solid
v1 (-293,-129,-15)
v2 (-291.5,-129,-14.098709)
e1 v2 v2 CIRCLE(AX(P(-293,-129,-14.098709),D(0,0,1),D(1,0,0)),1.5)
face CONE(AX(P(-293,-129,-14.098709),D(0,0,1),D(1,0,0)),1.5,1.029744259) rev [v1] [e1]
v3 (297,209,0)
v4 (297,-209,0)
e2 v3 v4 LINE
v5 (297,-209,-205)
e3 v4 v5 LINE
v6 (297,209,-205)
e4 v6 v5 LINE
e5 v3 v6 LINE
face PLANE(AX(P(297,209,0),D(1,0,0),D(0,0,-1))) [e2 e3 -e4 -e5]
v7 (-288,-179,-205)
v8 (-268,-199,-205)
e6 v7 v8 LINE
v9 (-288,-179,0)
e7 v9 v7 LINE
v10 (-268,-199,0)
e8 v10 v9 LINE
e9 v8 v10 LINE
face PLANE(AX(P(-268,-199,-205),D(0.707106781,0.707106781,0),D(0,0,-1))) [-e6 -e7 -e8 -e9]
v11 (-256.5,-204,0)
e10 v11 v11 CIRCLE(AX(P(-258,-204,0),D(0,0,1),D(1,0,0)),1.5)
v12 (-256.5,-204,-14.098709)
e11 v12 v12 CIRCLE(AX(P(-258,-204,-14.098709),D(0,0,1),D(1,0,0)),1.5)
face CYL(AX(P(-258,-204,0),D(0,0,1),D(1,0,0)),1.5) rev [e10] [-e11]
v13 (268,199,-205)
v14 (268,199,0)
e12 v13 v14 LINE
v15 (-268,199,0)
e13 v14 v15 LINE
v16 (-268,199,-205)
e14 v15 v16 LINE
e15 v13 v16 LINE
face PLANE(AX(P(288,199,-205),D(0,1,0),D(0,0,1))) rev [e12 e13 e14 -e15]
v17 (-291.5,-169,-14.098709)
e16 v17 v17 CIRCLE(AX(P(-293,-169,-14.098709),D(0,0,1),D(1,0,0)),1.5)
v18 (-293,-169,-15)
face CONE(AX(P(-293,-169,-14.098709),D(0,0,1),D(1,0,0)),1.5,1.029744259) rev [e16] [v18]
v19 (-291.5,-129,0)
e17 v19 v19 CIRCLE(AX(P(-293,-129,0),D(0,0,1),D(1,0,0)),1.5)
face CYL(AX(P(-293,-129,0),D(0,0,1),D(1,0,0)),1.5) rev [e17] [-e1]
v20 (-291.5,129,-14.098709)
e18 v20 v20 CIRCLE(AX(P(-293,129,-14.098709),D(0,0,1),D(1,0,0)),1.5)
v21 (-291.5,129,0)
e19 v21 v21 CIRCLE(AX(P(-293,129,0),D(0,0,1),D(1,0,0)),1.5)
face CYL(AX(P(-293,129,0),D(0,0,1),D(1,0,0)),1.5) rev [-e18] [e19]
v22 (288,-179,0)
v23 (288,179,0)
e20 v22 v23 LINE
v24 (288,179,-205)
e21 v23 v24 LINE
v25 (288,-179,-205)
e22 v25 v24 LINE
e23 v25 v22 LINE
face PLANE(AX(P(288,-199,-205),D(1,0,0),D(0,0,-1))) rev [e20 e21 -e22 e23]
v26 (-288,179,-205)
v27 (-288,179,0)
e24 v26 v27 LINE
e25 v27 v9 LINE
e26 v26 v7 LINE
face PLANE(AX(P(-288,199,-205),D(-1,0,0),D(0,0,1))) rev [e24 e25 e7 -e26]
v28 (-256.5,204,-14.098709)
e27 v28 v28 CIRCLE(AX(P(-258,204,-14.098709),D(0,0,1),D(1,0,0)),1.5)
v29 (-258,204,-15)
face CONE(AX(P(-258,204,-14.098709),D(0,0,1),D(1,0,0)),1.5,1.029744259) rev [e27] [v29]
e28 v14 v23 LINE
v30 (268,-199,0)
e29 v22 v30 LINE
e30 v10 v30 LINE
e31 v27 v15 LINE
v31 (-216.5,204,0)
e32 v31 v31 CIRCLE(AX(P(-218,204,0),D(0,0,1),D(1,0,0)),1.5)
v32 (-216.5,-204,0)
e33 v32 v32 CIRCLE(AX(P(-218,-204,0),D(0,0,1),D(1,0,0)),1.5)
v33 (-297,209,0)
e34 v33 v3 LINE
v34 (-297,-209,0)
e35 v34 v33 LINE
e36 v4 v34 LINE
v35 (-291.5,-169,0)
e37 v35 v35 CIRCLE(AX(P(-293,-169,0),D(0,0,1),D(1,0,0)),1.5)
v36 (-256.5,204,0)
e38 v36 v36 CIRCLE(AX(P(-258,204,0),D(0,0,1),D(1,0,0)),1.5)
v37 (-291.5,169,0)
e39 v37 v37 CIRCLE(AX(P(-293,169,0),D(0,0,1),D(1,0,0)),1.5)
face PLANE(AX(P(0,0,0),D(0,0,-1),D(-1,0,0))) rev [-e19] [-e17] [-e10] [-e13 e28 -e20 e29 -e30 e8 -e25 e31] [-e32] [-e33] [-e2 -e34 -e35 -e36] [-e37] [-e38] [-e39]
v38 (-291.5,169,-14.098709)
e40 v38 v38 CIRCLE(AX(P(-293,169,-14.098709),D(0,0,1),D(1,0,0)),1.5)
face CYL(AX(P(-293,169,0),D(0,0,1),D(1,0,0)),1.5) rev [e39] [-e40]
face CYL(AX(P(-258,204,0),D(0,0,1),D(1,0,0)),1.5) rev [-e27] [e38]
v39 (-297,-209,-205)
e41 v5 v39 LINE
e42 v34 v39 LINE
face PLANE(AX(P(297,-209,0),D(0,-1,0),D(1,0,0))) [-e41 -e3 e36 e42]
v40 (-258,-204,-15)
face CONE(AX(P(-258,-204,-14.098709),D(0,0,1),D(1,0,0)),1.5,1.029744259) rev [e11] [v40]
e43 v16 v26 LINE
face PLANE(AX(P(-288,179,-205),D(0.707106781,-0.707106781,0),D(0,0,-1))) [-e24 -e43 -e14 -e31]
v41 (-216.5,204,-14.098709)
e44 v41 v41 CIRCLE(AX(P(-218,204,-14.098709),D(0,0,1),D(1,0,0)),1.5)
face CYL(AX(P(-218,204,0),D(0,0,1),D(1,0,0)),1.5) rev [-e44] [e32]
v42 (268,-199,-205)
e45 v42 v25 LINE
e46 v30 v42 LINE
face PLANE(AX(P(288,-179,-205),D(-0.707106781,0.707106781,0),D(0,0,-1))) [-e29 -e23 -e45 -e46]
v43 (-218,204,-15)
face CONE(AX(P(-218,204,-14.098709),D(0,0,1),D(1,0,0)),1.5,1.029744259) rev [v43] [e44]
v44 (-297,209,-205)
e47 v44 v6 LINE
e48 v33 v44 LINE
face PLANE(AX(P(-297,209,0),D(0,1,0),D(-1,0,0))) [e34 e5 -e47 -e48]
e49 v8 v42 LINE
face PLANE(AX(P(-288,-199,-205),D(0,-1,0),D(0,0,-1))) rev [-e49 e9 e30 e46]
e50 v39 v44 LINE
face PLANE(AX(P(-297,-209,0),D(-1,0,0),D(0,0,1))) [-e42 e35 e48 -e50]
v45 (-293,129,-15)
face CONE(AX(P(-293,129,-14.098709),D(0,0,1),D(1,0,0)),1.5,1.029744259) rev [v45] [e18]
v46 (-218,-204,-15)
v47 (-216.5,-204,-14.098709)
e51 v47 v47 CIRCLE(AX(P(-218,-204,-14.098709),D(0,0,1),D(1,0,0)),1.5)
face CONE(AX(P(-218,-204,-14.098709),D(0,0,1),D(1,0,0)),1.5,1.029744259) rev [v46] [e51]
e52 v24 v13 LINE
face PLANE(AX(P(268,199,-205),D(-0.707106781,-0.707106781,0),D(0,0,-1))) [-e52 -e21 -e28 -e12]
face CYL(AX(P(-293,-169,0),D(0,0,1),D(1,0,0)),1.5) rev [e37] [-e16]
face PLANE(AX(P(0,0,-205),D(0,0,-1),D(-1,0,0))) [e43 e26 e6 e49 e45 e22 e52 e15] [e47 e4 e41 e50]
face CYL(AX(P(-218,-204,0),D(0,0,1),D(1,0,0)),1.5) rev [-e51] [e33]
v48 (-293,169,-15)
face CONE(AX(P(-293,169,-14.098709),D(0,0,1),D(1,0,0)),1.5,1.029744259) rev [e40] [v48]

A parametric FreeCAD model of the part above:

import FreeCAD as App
import Part
import Sketcher

V = App.Vector
Q = App.Units.Quantity


def edges_at(feature, points):
    """Names of the edges that pass closest to the given points."""
    edges = feature.Shape.Edges
    near = lambda p: min(range(len(edges)), key=lambda i: edges[i].distToShape(Part.Vertex(*p))[0])
    return sorted({f"Edge{near(p) + 1}" for p in points})


def add_polygon(sketch, points):
    """Adds a closed chain of lines whose ends are joined by coincident constraints."""
    first, n = sketch.GeometryCount, len(points)
    for a, b in zip(points, points[1:] + points[:1]):
        sketch.addGeometry(Part.LineSegment(App.Vector(*a, 0), App.Vector(*b, 0)), False)
    for i in range(n):
        sketch.addConstraint(Sketcher.Constraint("Coincident", first + i, 2, first + (i + 1) % n, 1))

doc = App.newDocument("Part")
body = doc.addObject("PartDesign::Body", "Body")

# Sketch on XY plane
sketch1 = body.newObject("Sketcher::SketchObject", "Sketch")
sketch1.AttachmentSupport = (doc.getObject("XY_Plane"), [""])
sketch1.MapMode = "FlatFace"
sketch1.AttachmentOffset = App.Placement(V(0, 0, -205), App.Rotation())
add_polygon(sketch1, [(297, 209), (297, -209), (-297, -209), (-297, 209)])  # lines 0-3
sketch1.addConstraint([
    Sketcher.Constraint("Vertical", 0),
    Sketcher.Constraint("Horizontal", 1),
    Sketcher.Constraint("Vertical", 2),
    Sketcher.Constraint("Horizontal", 3),
    Sketcher.Constraint("Symmetric", 0, 2, 2, 2, -1, 1),
    Sketcher.Constraint("DistanceX", 1, 2, 1, 1, Q("594 mm")),
    Sketcher.Constraint("DistanceY", 0, 2, 0, 1, Q("418 mm")),
])
pad1 = body.newObject("PartDesign::Pad", "Pad")
pad1.Profile = sketch1
pad1.Length = 205

# Sketch on XY plane
sketch2 = body.newObject("Sketcher::SketchObject", "Sketch001")
sketch2.AttachmentSupport = (doc.getObject("XY_Plane"), [""])
sketch2.MapMode = "FlatFace"
add_polygon(sketch2, [(-288, 199), (-288, -199), (288, -199), (288, 199)])  # lines 0-3
sketch2.addConstraint([
    Sketcher.Constraint("Vertical", 0),
    Sketcher.Constraint("Horizontal", 1),
    Sketcher.Constraint("Vertical", 2),
    Sketcher.Constraint("Horizontal", 3),
    Sketcher.Constraint("Symmetric", 0, 2, 2, 2, -1, 1),
    Sketcher.Constraint("DistanceX", 1, 1, 1, 2, Q("576 mm")),
    Sketcher.Constraint("DistanceY", 0, 2, 0, 1, Q("398 mm")),
])
pocket1 = body.newObject("PartDesign::Pocket", "Pocket")
pocket1.Profile = sketch2
pocket1.Type = "ThroughAll"

# Sketch on XY plane
sketch3 = body.newObject("Sketcher::SketchObject", "Sketch002")
sketch3.AttachmentSupport = (doc.getObject("XY_Plane"), [""])
sketch3.MapMode = "FlatFace"
sketch3.addGeometry([
    Part.Circle(V(-293, -169, 0), V(0, 0, 1), 1.5),  # 0
    Part.Circle(V(-293, -129, 0), V(0, 0, 1), 1.5),  # 1
    Part.Circle(V(-258, 204, 0), V(0, 0, 1), 1.5),  # 2
    Part.Circle(V(-293, 169, 0), V(0, 0, 1), 1.5),  # 3
    Part.Circle(V(-293, 129, 0), V(0, 0, 1), 1.5),  # 4
    Part.Circle(V(-218, 204, 0), V(0, 0, 1), 1.5),  # 5
    Part.Circle(V(-258, -204, 0), V(0, 0, 1), 1.5),  # 6
    Part.Circle(V(-218, -204, 0), V(0, 0, 1), 1.5),  # 7
], False)
sketch3.addConstraint([
    Sketcher.Constraint("Equal", 0, 1),
    Sketcher.Constraint("Equal", 1, 2),
    Sketcher.Constraint("Equal", 2, 3),
    Sketcher.Constraint("Equal", 3, 4),
    Sketcher.Constraint("Equal", 4, 5),
    Sketcher.Constraint("Equal", 5, 6),
    Sketcher.Constraint("Equal", 6, 7),
    Sketcher.Constraint("Symmetric", 0, 3, 3, 3, -1),
    Sketcher.Constraint("Symmetric", 1, 3, 4, 3, -1),
    Sketcher.Constraint("Symmetric", 2, 3, 6, 3, -1),
    Sketcher.Constraint("Symmetric", 5, 3, 7, 3, -1),
    Sketcher.Constraint("Horizontal", 2, 3, 5, 3),
    Sketcher.Constraint("Vertical", 0, 3, 1, 3),
    Sketcher.Constraint("Diameter", 0, Q("3 mm")),
    Sketcher.Constraint("DistanceX", 0, 3, -1, 1, Q("293 mm")),
    Sketcher.Constraint("DistanceY", 0, 3, -1, 1, Q("169 mm")),
    Sketcher.Constraint("DistanceY", 1, 3, -1, 1, Q("129 mm")),
    Sketcher.Constraint("DistanceX", 2, 3, -1, 1, Q("258 mm")),
    Sketcher.Constraint("DistanceY", -1, 1, 2, 3, Q("204 mm")),
    Sketcher.Constraint("DistanceX", 5, 3, -1, 1, Q("218 mm")),
])
doc.recompute()
hole = body.newObject("PartDesign::Hole", "Hole")
hole.Profile = sketch3
hole.ThreadType = "None"
hole.Diameter = 3
hole.DepthType = "Dimension"
hole.Depth = 14.098709
hole.DrillPoint = "Angled"
hole.DrillPointAngle = 118
doc.recompute()

chamfer = body.newObject("PartDesign::Chamfer", "Chamfer")
chamfer.Base = (hole, edges_at(hole, [
    (288, 199, -102.5),
    (288, -199, -102.5),
    (-288, -199, -102.5),
    (-288, 199, -102.5),
]))
chamfer.Size = 20

doc.recompute()
